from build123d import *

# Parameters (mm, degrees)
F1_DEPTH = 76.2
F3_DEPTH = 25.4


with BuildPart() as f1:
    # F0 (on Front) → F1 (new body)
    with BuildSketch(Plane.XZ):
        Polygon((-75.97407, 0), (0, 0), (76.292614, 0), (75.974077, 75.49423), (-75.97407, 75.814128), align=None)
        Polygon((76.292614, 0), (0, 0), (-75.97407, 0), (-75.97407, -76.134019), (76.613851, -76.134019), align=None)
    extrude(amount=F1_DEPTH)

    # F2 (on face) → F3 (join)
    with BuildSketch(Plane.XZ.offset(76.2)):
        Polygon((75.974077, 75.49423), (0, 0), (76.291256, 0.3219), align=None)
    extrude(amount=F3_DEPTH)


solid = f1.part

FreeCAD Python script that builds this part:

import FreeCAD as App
import Part
import Sketcher

V = App.Vector
Q = App.Units.Quantity

doc = App.newDocument("Part")
body = doc.addObject("PartDesign::Body", "Body")

sketch1 = body.newObject("Sketcher::SketchObject", "Sketch")
sketch1.AttachmentSupport = (doc.getObject("XZ_Plane"), [""])
sketch1.MapMode = "FlatFace"
sketch1.addGeometry(Part.LineSegment(V(76, 0, 0), V(76, 75, 0)), False)
sketch1.addGeometry(Part.LineSegment(V(76, 75, 0), V(-76, 76, 0)), False)
sketch1.addGeometry(Part.LineSegment(V(-76, 76, 0), V(-76, -76, 0)), False)
sketch1.addGeometry(Part.LineSegment(V(-76, -76, 0), V(77, -76, 0)), False)
sketch1.addGeometry(Part.LineSegment(V(77, -76, 0), V(76, 0, 0)), False)
sketch1.addConstraint(Sketcher.Constraint("Coincident", 0, 2, 1, 1))
sketch1.addConstraint(Sketcher.Constraint("Coincident", 1, 2, 2, 1))
sketch1.addConstraint(Sketcher.Constraint("Coincident", 2, 2, 3, 1))
sketch1.addConstraint(Sketcher.Constraint("Coincident", 3, 2, 4, 1))
sketch1.addConstraint(Sketcher.Constraint("Coincident", 4, 2, 0, 1))
sketch1.addConstraint(Sketcher.Constraint("Vertical", 2))
sketch1.addConstraint(Sketcher.Constraint("Horizontal", 3))
sketch1.addConstraint(Sketcher.Constraint("PointOnObject", 4, 2, -1))
sketch1.addConstraint(Sketcher.Constraint("Parallel", 0, 4))
sketch1.addConstraint(Sketcher.Constraint("DistanceX", 3, 1, 3, 2, Q("152.587921 mm")))
sketch1.addConstraint(Sketcher.Constraint("DistanceY", 2, 2, 2, 1, Q("151.948147 mm")))
sketch1.addConstraint(Sketcher.Constraint("DistanceY", -1, 1, 0, 2, Q("75.49423 mm")))
sketch1.addConstraint(Sketcher.Constraint("DistanceX", 1, 2, -1, 1, Q("75.97407 mm")))
sketch1.addConstraint(Sketcher.Constraint("DistanceY", 2, 2, -1, 1, Q("76.134019 mm")))
sketch1.addConstraint(Sketcher.Constraint("Distance", 1, Q("151.948484 mm")))
pad1 = body.newObject("PartDesign::Pad", "Pad")
pad1.Profile = sketch1
pad1.Length = Q("3 in")

sketch2 = body.newObject("Sketcher::SketchObject", "Sketch001")
sketch2.AttachmentSupport = (doc.getObject("XZ_Plane"), [""])
sketch2.MapMode = "FlatFace"
sketch2.AttachmentOffset = App.Placement(V(0, 0, 3 * 25.4), App.Rotation())
sketch2.addGeometry(Part.LineSegment(V(76, 75, 0), V(0, 0, 0)), False)
sketch2.addGeometry(Part.LineSegment(V(0, 0, 0), V(76, 0, 0)), False)
sketch2.addGeometry(Part.LineSegment(V(76, 0, 0), V(76, 75, 0)), False)
sketch2.addConstraint(Sketcher.Constraint("Coincident", 0, 2, 1, 1))
sketch2.addConstraint(Sketcher.Constraint("Coincident", 1, 2, 2, 1))
sketch2.addConstraint(Sketcher.Constraint("Coincident", 2, 2, 0, 1))
sketch2.addConstraint(Sketcher.Constraint("Coincident", 0, 2, -1, 1))
sketch2.addConstraint(Sketcher.Constraint("Perpendicular", 1, 2))
sketch2.addConstraint(Sketcher.Constraint("Distance", 2, Q("75.172999 mm")))
sketch2.addConstraint(Sketcher.Constraint("DistanceY", -1, 1, 1, 2, Q("0.3219 mm")))
sketch2.addConstraint(Sketcher.Constraint("Distance", 0, Q("107.104804 mm")))
pad2 = body.newObject("PartDesign::Pad", "Pad001")
pad2.Profile = sketch2
pad2.Length = Q("1 in")

doc.recompute()
